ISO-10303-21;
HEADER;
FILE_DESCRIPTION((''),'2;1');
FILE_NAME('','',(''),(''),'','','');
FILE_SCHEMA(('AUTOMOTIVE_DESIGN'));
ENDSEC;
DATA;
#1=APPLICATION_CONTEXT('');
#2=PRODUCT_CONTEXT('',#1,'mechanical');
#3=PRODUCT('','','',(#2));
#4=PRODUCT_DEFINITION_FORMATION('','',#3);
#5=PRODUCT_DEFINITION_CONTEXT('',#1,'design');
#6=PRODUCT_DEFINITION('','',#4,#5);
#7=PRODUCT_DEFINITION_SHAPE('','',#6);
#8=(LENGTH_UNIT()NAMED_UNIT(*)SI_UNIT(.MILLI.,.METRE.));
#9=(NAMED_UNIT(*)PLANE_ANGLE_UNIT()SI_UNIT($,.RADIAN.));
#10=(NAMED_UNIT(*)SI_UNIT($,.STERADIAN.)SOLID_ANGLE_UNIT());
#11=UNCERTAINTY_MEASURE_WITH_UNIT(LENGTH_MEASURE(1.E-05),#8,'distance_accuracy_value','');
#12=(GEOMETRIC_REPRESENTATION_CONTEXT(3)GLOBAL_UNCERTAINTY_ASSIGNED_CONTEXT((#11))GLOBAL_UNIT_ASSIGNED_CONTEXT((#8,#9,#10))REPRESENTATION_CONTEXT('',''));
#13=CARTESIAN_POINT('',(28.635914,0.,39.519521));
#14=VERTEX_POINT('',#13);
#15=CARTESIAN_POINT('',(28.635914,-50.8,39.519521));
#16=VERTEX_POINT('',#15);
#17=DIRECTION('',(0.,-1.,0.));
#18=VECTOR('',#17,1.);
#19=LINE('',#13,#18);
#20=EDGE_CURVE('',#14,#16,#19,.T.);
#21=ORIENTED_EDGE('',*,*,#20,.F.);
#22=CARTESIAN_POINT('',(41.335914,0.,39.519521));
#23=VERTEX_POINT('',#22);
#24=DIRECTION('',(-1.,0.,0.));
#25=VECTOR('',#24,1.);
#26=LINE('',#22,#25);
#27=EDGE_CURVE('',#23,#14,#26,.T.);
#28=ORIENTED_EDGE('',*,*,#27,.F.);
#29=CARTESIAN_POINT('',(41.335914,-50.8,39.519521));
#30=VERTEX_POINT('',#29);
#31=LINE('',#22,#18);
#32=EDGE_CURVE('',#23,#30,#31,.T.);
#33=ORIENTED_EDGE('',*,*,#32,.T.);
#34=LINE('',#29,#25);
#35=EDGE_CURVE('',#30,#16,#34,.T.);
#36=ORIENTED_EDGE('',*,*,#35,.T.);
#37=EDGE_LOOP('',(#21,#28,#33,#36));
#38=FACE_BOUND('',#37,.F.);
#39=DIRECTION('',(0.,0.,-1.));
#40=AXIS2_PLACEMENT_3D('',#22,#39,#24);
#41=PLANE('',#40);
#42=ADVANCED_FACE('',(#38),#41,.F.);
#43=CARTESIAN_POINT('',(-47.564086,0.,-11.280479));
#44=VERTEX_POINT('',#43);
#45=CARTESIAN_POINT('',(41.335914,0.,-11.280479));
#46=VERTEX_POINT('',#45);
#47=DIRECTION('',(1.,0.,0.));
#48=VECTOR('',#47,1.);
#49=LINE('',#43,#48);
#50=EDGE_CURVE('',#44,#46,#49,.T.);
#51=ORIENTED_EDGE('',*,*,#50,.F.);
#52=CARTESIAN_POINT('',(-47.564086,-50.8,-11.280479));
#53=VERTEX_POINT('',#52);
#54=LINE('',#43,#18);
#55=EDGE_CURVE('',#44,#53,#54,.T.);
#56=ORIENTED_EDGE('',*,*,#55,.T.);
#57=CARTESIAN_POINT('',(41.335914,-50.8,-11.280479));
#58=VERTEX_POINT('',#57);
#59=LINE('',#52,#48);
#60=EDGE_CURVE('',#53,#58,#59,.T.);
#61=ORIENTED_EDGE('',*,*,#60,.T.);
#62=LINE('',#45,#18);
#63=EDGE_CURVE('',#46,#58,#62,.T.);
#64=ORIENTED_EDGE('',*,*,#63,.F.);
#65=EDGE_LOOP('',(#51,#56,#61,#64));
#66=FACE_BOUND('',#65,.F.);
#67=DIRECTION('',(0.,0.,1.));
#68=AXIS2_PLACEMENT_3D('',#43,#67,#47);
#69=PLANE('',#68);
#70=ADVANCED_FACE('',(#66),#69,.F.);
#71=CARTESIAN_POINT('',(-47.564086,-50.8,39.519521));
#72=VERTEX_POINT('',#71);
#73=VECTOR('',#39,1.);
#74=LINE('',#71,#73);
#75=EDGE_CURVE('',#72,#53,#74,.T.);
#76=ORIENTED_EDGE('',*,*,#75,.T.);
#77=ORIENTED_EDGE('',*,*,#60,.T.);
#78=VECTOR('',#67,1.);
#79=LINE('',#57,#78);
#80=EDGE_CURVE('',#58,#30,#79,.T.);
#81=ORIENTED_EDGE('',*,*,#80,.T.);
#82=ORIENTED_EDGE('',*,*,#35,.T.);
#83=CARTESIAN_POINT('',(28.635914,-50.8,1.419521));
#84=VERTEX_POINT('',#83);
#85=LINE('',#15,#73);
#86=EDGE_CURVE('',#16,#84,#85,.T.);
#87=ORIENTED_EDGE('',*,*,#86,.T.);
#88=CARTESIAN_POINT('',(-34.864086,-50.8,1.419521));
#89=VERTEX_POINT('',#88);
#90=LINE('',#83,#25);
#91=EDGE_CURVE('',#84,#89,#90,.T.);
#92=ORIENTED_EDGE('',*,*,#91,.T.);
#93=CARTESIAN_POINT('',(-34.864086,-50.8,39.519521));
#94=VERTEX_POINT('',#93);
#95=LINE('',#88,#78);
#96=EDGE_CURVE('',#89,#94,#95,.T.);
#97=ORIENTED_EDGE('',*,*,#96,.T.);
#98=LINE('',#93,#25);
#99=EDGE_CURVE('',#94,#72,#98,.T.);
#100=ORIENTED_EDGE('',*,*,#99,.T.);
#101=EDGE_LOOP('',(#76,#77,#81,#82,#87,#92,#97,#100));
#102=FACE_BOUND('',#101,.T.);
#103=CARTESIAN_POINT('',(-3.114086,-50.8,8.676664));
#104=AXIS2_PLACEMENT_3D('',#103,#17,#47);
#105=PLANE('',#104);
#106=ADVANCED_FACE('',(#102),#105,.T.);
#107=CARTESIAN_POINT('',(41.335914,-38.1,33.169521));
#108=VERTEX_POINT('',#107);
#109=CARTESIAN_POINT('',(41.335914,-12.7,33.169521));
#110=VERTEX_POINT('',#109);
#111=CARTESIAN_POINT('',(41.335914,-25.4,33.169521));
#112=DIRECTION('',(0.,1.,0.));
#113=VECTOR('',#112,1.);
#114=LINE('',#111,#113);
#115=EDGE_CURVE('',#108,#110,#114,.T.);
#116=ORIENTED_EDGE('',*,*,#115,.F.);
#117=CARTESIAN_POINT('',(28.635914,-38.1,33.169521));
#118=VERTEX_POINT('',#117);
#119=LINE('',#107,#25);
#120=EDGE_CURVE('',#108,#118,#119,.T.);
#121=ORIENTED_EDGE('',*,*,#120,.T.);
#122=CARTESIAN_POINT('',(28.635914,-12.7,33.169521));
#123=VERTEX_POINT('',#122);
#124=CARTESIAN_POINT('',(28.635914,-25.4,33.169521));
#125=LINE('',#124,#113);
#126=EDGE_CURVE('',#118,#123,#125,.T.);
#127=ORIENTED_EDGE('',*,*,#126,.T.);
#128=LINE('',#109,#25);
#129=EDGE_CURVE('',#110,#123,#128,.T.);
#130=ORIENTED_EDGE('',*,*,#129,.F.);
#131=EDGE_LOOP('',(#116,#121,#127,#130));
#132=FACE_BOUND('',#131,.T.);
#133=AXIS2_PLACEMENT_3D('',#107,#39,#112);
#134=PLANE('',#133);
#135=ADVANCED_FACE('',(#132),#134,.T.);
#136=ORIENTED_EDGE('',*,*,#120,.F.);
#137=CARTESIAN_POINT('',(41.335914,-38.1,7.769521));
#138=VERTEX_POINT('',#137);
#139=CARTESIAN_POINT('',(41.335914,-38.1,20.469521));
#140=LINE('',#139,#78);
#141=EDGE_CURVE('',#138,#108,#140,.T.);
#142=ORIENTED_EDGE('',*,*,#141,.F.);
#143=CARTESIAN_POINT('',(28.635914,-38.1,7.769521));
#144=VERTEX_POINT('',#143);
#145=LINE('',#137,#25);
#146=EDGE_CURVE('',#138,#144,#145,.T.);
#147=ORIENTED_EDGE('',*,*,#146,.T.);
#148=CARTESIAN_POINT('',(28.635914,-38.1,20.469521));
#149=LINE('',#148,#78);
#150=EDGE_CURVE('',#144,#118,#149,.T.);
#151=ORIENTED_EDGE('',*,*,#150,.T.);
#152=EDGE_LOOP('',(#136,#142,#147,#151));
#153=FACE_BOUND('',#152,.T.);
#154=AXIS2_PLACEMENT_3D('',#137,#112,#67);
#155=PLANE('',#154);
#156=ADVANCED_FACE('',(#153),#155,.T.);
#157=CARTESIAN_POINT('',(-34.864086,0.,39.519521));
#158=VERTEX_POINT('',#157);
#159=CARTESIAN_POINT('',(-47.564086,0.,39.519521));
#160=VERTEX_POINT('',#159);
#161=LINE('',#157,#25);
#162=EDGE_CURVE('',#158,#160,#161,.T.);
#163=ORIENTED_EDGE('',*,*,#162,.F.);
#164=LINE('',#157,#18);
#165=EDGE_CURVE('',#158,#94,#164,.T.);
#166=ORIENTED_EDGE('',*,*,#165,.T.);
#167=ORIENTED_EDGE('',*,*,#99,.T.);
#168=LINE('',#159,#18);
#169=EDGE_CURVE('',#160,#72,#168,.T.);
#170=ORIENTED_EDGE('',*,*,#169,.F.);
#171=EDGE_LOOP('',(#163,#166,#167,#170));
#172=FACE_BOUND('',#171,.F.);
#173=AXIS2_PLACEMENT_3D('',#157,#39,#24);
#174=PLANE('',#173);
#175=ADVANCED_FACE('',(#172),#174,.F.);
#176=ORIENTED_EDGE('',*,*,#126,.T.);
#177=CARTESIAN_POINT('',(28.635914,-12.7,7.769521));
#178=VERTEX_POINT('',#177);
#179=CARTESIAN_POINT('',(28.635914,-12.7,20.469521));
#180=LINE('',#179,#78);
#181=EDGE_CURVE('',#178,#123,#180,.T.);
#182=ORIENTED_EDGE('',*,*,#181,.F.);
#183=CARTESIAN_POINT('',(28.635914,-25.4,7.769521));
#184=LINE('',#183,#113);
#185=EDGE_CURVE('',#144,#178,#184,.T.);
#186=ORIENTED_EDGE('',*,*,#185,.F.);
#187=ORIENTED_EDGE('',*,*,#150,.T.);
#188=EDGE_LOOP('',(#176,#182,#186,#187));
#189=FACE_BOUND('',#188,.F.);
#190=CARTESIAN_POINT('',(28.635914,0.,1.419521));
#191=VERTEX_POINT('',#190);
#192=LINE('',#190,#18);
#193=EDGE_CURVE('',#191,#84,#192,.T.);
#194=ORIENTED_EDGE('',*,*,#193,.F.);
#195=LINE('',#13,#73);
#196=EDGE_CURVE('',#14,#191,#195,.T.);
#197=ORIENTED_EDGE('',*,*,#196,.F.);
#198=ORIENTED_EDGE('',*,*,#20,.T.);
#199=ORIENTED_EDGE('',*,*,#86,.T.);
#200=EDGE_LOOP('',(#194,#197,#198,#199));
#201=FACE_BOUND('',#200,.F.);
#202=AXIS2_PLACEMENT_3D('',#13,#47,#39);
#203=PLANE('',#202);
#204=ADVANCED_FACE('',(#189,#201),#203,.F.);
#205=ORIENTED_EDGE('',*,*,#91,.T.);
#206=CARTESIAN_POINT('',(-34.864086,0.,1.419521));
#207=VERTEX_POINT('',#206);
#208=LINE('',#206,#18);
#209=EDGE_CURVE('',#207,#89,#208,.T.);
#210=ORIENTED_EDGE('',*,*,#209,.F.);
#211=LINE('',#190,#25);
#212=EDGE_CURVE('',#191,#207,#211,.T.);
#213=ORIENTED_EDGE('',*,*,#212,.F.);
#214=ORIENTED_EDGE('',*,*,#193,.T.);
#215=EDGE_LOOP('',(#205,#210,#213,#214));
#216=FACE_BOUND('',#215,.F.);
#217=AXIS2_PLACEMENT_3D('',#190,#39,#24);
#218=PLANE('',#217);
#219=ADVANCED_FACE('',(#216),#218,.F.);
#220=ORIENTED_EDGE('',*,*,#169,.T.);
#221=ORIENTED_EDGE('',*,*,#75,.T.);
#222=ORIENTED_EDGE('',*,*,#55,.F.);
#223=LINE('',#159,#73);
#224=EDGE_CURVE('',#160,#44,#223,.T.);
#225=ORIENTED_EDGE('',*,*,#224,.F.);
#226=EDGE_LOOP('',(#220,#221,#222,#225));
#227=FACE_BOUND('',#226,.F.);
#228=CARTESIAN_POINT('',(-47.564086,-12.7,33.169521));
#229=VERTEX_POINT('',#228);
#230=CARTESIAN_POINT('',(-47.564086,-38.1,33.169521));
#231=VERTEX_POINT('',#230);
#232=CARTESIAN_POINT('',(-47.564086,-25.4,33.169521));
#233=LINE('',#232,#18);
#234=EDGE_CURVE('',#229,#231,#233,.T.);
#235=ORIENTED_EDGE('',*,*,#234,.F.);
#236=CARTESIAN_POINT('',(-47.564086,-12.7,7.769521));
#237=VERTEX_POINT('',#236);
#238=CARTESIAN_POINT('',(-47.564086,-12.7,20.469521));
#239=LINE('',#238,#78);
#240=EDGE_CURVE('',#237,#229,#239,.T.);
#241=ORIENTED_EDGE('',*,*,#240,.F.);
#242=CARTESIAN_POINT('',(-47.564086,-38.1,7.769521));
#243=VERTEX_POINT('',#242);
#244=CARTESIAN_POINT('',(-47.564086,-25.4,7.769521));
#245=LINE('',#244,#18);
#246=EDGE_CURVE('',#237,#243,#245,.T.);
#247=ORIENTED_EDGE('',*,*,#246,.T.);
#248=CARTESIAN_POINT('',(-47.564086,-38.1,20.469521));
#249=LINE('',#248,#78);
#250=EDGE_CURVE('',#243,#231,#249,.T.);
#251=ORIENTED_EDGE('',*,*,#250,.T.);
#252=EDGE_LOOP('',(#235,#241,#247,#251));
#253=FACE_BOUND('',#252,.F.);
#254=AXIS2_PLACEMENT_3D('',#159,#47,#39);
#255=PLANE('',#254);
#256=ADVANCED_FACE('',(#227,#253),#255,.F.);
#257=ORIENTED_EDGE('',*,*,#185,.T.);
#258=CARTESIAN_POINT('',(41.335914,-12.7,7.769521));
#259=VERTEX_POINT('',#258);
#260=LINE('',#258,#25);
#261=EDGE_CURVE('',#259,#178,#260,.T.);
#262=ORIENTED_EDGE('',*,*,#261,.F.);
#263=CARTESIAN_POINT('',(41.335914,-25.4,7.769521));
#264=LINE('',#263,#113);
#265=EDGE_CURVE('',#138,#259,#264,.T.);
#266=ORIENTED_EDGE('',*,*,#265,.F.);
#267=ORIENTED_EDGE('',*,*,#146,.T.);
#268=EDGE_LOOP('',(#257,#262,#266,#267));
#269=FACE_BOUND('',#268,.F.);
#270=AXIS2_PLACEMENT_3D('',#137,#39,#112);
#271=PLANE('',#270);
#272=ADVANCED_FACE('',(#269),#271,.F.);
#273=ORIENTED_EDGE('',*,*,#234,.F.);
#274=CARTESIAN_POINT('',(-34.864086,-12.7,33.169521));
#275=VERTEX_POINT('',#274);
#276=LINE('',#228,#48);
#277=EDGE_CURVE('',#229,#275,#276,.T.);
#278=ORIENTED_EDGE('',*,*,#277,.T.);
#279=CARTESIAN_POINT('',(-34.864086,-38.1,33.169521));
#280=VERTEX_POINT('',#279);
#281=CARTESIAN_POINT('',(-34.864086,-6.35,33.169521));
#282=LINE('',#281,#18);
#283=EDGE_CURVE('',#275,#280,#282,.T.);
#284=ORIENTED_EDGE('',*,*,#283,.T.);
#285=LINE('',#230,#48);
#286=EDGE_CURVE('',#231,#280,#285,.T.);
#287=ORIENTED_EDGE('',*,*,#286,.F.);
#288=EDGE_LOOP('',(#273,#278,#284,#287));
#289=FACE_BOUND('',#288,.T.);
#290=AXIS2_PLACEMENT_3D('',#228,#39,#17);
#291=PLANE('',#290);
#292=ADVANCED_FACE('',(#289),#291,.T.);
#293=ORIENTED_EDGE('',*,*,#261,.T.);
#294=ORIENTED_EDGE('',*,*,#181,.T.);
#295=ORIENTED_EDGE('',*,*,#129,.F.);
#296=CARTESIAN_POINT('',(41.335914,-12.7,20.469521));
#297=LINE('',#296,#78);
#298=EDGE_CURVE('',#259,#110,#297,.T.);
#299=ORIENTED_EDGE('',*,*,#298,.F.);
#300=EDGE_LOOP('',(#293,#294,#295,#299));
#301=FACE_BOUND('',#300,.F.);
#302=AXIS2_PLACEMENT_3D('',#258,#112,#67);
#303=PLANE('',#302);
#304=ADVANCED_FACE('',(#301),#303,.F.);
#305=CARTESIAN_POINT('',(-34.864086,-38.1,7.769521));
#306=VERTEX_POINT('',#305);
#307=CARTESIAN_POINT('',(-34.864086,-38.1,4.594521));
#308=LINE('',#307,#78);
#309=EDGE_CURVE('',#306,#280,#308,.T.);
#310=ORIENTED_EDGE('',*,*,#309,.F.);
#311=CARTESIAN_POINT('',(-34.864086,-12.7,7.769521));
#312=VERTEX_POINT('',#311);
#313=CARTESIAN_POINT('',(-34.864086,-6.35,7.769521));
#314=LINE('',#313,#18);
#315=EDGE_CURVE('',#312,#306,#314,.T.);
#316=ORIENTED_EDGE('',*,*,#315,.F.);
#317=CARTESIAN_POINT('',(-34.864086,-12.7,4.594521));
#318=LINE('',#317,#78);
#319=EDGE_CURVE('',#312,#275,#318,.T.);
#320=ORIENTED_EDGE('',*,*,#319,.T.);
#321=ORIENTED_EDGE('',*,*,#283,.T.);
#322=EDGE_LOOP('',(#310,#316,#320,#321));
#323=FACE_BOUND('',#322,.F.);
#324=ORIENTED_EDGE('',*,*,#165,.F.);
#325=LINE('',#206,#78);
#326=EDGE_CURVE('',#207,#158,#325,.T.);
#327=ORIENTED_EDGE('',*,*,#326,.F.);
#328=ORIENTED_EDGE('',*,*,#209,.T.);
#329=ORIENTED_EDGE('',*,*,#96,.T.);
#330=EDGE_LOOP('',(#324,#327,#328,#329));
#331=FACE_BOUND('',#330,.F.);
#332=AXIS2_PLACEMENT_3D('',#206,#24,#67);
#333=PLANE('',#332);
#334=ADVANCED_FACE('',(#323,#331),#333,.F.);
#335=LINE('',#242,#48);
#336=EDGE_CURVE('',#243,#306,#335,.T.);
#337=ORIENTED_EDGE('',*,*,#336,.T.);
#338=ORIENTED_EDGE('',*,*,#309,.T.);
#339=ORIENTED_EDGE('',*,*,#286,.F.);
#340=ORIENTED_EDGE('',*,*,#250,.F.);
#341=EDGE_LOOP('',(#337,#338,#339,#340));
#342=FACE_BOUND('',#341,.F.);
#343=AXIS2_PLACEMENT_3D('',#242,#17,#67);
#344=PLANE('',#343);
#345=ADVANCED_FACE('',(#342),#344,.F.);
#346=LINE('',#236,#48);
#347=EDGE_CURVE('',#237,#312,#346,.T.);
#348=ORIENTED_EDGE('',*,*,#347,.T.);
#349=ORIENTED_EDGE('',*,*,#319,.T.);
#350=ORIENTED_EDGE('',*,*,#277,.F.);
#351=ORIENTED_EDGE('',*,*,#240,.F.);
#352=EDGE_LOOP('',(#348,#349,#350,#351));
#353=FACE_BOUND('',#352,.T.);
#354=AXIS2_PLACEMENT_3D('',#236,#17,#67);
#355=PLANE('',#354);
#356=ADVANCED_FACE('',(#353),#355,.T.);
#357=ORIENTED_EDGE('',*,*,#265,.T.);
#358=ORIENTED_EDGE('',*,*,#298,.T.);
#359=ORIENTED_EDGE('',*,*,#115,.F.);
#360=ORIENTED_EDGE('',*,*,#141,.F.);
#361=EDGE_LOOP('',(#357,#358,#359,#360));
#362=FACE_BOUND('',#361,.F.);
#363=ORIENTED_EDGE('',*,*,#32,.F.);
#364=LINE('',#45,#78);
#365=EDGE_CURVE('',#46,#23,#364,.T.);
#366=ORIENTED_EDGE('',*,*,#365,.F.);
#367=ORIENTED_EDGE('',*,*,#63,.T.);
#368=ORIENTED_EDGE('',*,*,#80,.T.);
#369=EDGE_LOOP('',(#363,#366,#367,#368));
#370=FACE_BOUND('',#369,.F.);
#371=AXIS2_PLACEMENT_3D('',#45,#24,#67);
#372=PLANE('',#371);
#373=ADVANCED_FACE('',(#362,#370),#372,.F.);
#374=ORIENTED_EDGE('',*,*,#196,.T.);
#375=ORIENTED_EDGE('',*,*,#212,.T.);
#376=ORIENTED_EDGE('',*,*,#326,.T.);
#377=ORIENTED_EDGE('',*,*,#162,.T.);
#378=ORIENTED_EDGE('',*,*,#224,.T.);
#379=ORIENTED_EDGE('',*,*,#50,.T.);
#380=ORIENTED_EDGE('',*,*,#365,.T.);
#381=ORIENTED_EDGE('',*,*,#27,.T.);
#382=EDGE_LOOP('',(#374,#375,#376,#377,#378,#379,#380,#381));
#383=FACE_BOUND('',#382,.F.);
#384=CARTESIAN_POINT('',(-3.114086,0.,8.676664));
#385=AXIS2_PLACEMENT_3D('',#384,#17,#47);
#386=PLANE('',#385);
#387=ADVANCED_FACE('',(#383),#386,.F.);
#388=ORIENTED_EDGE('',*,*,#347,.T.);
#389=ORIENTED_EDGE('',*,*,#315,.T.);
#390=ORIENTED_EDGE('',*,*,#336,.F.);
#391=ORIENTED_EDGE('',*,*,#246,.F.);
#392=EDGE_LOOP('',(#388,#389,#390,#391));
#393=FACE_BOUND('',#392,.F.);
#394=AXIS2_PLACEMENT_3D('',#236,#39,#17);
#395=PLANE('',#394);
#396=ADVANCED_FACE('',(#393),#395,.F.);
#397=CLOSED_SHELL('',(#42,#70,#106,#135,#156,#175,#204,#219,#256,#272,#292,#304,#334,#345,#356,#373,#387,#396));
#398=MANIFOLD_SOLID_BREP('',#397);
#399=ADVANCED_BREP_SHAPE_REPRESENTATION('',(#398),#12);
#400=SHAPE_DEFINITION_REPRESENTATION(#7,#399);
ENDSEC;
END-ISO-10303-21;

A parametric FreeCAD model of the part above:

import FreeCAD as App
import Part
import Sketcher
Q = App.Units.Quantity


def add_polygon(sketch, points):
    """Adds a closed chain of lines whose ends are joined by coincident constraints."""
    first, n = sketch.GeometryCount, len(points)
    for a, b in zip(points, points[1:] + points[:1]):
        sketch.addGeometry(Part.LineSegment(App.Vector(*a, 0), App.Vector(*b, 0)), False)
    for i in range(n):
        sketch.addConstraint(Sketcher.Constraint("Coincident", first + i, 2, first + (i + 1) % n, 1))

doc = App.newDocument("Part")
body = doc.addObject("PartDesign::Body", "Body")

# Sketch on XZ plane
sketch1 = doc.addObject("Sketcher::SketchObject", "Sketch")
body.addObject(sketch1)
sketch1.AttachmentSupport = (doc.XZ_Plane, [""])
sketch1.MapMode = "FlatFace"
add_polygon(sketch1, [(-48, 40), (-48, -11), (41, -11), (41, 40), (29, 40), (29, 1), (-35, 1), (-35, 40)])  # lines 0-7
sketch1.addConstraint(Sketcher.Constraint("Vertical", 0))
sketch1.addConstraint(Sketcher.Constraint("Horizontal", 1))
sketch1.addConstraint(Sketcher.Constraint("Vertical", 2))
sketch1.addConstraint(Sketcher.Constraint("Horizontal", 3))
sketch1.addConstraint(Sketcher.Constraint("Vertical", 4))
sketch1.addConstraint(Sketcher.Constraint("Horizontal", 5))
sketch1.addConstraint(Sketcher.Constraint("Vertical", 6))
sketch1.addConstraint(Sketcher.Constraint("Horizontal", 7))
sketch1.addConstraint(Sketcher.Constraint("Horizontal", 3, 2, 6, 2))
sketch1.addConstraint(Sketcher.Constraint("Equal", 3, 7))
sketch1.addConstraint(Sketcher.Constraint("DistanceY", 0, 2, 0, 1, Q("2 in")))
sketch1.addConstraint(Sketcher.Constraint("DistanceX", 1, 1, 1, 2, Q("3.5 in")))
sketch1.addConstraint(Sketcher.Constraint("DistanceX", 3, 2, 3, 1, Q("0.5 in")))
sketch1.addConstraint(Sketcher.Constraint("DistanceY", 4, 2, 4, 1, Q("1.5 in")))
sketch1.addConstraint(Sketcher.Constraint("DistanceY", 0, 2, -1, 1, 11.280479))
sketch1.addConstraint(Sketcher.Constraint("DistanceX", 0, 2, -1, 1, 47.564086))
pad1 = doc.addObject("PartDesign::Pad", "Pad")
body.addObject(pad1)
pad1.Profile = sketch1
pad1.Length = Q("2 in")

# Sketch on YZ plane
sketch2 = doc.addObject("Sketcher::SketchObject", "Sketch001")
body.addObject(sketch2)
sketch2.AttachmentSupport = (doc.YZ_Plane, [""])
sketch2.MapMode = "FlatFace"
sketch2.AttachmentOffset = App.Placement(App.Vector(0, 0, 41.335914), App.Rotation())
add_polygon(sketch2, [(-38, 33), (-38, 8), (-13, 8), (-13, 33)])  # lines 0-3
sketch2.addConstraint(Sketcher.Constraint("Vertical", 0))
sketch2.addConstraint(Sketcher.Constraint("Horizontal", 1))
sketch2.addConstraint(Sketcher.Constraint("Vertical", 2))
sketch2.addConstraint(Sketcher.Constraint("Horizontal", 3))
sketch2.addConstraint(Sketcher.Constraint("Equal", 3, 0))
sketch2.addConstraint(Sketcher.Constraint("DistanceX", 1, 1, 1, 2, Q("1 in")))
sketch2.addConstraint(Sketcher.Constraint("DistanceX", 0, 2, -1, 1, Q("1.5 in")))
sketch2.addConstraint(Sketcher.Constraint("DistanceY", -1, 1, 0, 2, 7.769521))
pocket1 = doc.addObject("PartDesign::Pocket", "Pocket")
body.addObject(pocket1)
pocket1.Profile = sketch2
pocket1.Length = Q("0.5 in")

# Sketch on YZ plane
sketch3 = doc.addObject("Sketcher::SketchObject", "Sketch002")
body.addObject(sketch3)
sketch3.AttachmentSupport = (doc.YZ_Plane, [""])
sketch3.MapMode = "FlatFace"
sketch3.AttachmentOffset = App.Placement(App.Vector(0, 0, -47.564086), App.Rotation())
add_polygon(sketch3, [(-13, 33), (-13, 8), (-38, 8), (-38, 33)])  # lines 0-3
sketch3.addConstraint(Sketcher.Constraint("Vertical", 0))
sketch3.addConstraint(Sketcher.Constraint("Horizontal", 1))
sketch3.addConstraint(Sketcher.Constraint("Vertical", 2))
sketch3.addConstraint(Sketcher.Constraint("Horizontal", 3))
sketch3.addConstraint(Sketcher.Constraint("Equal", 3, 0))
sketch3.addConstraint(Sketcher.Constraint("DistanceX", 1, 2, 1, 1, Q("1 in")))
sketch3.addConstraint(Sketcher.Constraint("DistanceX", 0, 2, -1, 1, Q("0.5 in")))
sketch3.addConstraint(Sketcher.Constraint("DistanceY", -1, 1, 0, 2, 7.769521))
pocket2 = doc.addObject("PartDesign::Pocket", "Pocket001")
body.addObject(pocket2)
pocket2.Profile = sketch3
pocket2.Type = "ThroughAll"
pocket2.Reversed = True

doc.recompute()
